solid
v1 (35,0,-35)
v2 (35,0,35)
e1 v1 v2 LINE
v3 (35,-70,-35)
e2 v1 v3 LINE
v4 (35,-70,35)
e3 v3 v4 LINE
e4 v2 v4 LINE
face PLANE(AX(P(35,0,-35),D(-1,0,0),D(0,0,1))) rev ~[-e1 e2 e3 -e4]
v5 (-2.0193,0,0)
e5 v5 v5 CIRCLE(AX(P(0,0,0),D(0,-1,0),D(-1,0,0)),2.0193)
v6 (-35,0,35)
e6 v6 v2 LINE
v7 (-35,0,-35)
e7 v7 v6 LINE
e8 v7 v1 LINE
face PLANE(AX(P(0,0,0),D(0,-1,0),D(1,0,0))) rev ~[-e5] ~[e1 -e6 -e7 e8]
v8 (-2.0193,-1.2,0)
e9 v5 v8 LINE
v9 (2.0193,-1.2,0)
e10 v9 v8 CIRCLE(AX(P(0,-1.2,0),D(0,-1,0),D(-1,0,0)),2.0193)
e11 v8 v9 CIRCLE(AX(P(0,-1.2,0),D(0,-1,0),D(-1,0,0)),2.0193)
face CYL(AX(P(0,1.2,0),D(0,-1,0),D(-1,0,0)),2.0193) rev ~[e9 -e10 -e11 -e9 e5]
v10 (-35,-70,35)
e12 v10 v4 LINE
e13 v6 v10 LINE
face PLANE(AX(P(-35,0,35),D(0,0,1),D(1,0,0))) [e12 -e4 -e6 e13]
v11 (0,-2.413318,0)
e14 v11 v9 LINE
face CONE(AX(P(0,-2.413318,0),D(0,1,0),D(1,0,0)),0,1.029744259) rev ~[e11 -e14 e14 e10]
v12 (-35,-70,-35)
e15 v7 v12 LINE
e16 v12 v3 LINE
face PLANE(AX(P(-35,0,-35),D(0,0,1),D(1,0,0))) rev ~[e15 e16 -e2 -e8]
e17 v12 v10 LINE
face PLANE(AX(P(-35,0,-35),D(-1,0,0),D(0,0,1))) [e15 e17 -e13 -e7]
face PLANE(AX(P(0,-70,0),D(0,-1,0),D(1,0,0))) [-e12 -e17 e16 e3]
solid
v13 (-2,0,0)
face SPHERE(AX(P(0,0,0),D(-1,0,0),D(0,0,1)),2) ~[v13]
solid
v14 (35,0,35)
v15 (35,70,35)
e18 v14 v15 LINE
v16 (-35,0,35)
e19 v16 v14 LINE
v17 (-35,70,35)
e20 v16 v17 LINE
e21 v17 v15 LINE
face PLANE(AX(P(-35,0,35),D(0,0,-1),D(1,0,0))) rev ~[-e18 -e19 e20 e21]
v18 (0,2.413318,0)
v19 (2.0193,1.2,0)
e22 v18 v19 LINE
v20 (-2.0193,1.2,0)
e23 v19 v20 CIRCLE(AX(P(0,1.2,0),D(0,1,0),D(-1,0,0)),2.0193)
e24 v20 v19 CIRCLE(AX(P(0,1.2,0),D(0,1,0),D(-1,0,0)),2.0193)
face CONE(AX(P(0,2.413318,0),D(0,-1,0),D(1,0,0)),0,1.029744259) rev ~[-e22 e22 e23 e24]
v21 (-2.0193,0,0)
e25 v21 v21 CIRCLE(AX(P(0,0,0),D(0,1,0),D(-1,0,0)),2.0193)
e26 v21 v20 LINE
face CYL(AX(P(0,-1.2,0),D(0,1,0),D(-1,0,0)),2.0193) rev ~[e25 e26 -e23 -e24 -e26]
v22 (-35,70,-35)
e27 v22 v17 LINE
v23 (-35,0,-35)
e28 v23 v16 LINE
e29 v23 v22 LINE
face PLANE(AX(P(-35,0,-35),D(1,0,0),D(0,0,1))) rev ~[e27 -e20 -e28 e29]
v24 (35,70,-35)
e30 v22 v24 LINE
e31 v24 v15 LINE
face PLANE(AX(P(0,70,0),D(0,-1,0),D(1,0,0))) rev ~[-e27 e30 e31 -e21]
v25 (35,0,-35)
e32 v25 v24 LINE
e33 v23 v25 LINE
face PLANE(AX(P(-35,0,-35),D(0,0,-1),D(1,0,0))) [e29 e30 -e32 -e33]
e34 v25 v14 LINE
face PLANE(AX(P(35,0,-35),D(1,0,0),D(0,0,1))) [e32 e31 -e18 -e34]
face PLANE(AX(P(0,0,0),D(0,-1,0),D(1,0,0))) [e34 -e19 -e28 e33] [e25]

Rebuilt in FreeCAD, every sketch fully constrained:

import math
import FreeCAD as App
import Part
import Sketcher


def add_polygon(sketch, points):
    """Adds a closed chain of lines whose ends are joined by coincident constraints."""
    first, n = sketch.GeometryCount, len(points)
    for a, b in zip(points, points[1:] + points[:1]):
        sketch.addGeometry(Part.LineSegment(App.Vector(*a, 0), App.Vector(*b, 0)), False)
    for i in range(n):
        sketch.addConstraint(Sketcher.Constraint("Coincident", first + i, 2, first + (i + 1) % n, 1))

doc = App.newDocument("Part")
params = doc.addObject("Spreadsheet::Sheet", "Params")
for row, (alias, value) in enumerate([
    ("sketch1_radius", "2 mm"),
    ("revolution_angle", "360 deg"),
    ("sketch2_width", "70 mm"),
    ("pad1_length", "70 mm"),
    ("hole_diameter", "4.0386 mm"),
    ("hole_depth", "1.2 mm"),
    ("sketch4_width", "70 mm"),
    ("pad2_length", "70 mm"),
    ("hole2_diameter", "4.0386 mm"),
    ("hole2_depth", "1.2 mm"),
], start=1):
    params.set(f"A{row}", alias)
    params.set(f"B{row}", "=" + value)
    params.setAlias(f"B{row}", alias)

body = doc.addObject("PartDesign::Body", "Body")

# Sketch on XZ plane
sketch1 = body.newObject("Sketcher::SketchObject", "Sketch")
sketch1.AttachmentSupport = (doc.getObject("XZ_Plane"), [""])
sketch1.MapMode = "FlatFace"
sketch1.addGeometry(Part.LineSegment(App.Vector(-2, 0, 0), App.Vector(2, 0, 0)), False)
sketch1.addGeometry(Part.ArcOfCircle(Part.Circle(App.Vector(0, 0, 0), App.Vector(0, 0, 1), 2), math.radians(0), math.radians(180)), False)
sketch1.addConstraint(Sketcher.Constraint("Coincident", 0, 1, 1, 2))
sketch1.addConstraint(Sketcher.Constraint("Coincident", 1, 1, 0, 2))
sketch1.addConstraint(Sketcher.Constraint("Horizontal", 0))
sketch1.addConstraint(Sketcher.Constraint("Coincident", 1, 3, -1, 1))
sketch1.addConstraint(Sketcher.Constraint("PointOnObject", 0, 1, -1))
sketch1.addConstraint(Sketcher.Constraint("Radius", 1, 2.0))
sketch1.setExpression("Constraints[5]", "Params.sketch1_radius")
revolution = body.newObject("PartDesign::Revolution", "Revolution")
revolution.Profile = sketch1
revolution.ReferenceAxis = (sketch1, ["H_Axis"])
revolution.setExpression("Angle", "Params.revolution_angle")
body2 = doc.addObject("PartDesign::Body", "Body001")

# Sketch on XZ plane
sketch2 = body2.newObject("Sketcher::SketchObject", "Sketch001")
sketch2.AttachmentSupport = (doc.getObject("XZ_Plane001"), [""])
sketch2.MapMode = "FlatFace"
add_polygon(sketch2, [(-35, 35), (-35, -35), (35, -35), (35, 35)])  # lines 0-3
sketch2.addConstraint(Sketcher.Constraint("Vertical", 0))
sketch2.addConstraint(Sketcher.Constraint("Horizontal", 1))
sketch2.addConstraint(Sketcher.Constraint("Vertical", 2))
sketch2.addConstraint(Sketcher.Constraint("Horizontal", 3))
sketch2.addConstraint(Sketcher.Constraint("Symmetric", 0, 2, 2, 2, -1, 1))
sketch2.addConstraint(Sketcher.Constraint("Equal", 3, 0))
sketch2.addConstraint(Sketcher.Constraint("DistanceX", 1, 1, 1, 2, 70.0))
sketch2.setExpression("Constraints[10]", "Params.sketch2_width")
pad1 = body2.newObject("PartDesign::Pad", "Pad")
pad1.Profile = sketch2
pad1.setExpression("Length", "Params.pad1_length")

# Sketch on XZ plane
sketch3 = body2.newObject("Sketcher::SketchObject", "Sketch002")
sketch3.AttachmentSupport = (doc.getObject("XZ_Plane001"), [""])
sketch3.MapMode = "FlatFace"
sketch3.addGeometry(Part.Circle(App.Vector(0, 0, 0), App.Vector(0, 0, 1), 2), False)
sketch3.addConstraint(Sketcher.Constraint("Coincident", 0, 3, -1, 1))
sketch3.addConstraint(Sketcher.Constraint("Diameter", 0, 4.0386))
doc.recompute()
hole = body2.newObject("PartDesign::Hole", "Hole")
hole.Profile = sketch3
hole.ThreadType = "None"
hole.setExpression("Diameter", "Params.hole_diameter")
hole.DepthType = "Dimension"
hole.setExpression("Depth", "Params.hole_depth")
hole.DrillPoint = "Angled"
hole.DrillPointAngle = 118
hole.Reversed = True
body3 = doc.addObject("PartDesign::Body", "Body002")

# Sketch on XZ plane
sketch4 = body3.newObject("Sketcher::SketchObject", "Sketch003")
sketch4.AttachmentSupport = (doc.getObject("XZ_Plane002"), [""])
sketch4.MapMode = "FlatFace"
add_polygon(sketch4, [(-35, 35), (-35, -35), (35, -35), (35, 35)])  # lines 0-3
sketch4.addConstraint(Sketcher.Constraint("Vertical", 0))
sketch4.addConstraint(Sketcher.Constraint("Horizontal", 1))
sketch4.addConstraint(Sketcher.Constraint("Vertical", 2))
sketch4.addConstraint(Sketcher.Constraint("Horizontal", 3))
sketch4.addConstraint(Sketcher.Constraint("Symmetric", 0, 2, 2, 2, -1, 1))
sketch4.addConstraint(Sketcher.Constraint("Equal", 3, 0))
sketch4.addConstraint(Sketcher.Constraint("DistanceX", 1, 1, 1, 2, 70.0))
sketch4.setExpression("Constraints[10]", "Params.sketch4_width")
pad2 = body3.newObject("PartDesign::Pad", "Pad001")
pad2.Profile = sketch4
pad2.setExpression("Length", "Params.pad2_length")
pad2.Reversed = True

# Sketch on XZ plane
sketch5 = body3.newObject("Sketcher::SketchObject", "Sketch004")
sketch5.AttachmentSupport = (doc.getObject("XZ_Plane002"), [""])
sketch5.MapMode = "FlatFace"
sketch5.addGeometry(Part.Circle(App.Vector(0, 0, 0), App.Vector(0, 0, 1), 2), False)
sketch5.addConstraint(Sketcher.Constraint("Coincident", 0, 3, -1, 1))
sketch5.addConstraint(Sketcher.Constraint("Diameter", 0, 4.0386))
doc.recompute()
hole2 = body3.newObject("PartDesign::Hole", "Hole001")
hole2.Profile = sketch5
hole2.ThreadType = "None"
hole2.setExpression("Diameter", "Params.hole2_diameter")
hole2.DepthType = "Dimension"
hole2.setExpression("Depth", "Params.hole2_depth")
hole2.DrillPoint = "Angled"
hole2.DrillPointAngle = 118

doc.recompute()
